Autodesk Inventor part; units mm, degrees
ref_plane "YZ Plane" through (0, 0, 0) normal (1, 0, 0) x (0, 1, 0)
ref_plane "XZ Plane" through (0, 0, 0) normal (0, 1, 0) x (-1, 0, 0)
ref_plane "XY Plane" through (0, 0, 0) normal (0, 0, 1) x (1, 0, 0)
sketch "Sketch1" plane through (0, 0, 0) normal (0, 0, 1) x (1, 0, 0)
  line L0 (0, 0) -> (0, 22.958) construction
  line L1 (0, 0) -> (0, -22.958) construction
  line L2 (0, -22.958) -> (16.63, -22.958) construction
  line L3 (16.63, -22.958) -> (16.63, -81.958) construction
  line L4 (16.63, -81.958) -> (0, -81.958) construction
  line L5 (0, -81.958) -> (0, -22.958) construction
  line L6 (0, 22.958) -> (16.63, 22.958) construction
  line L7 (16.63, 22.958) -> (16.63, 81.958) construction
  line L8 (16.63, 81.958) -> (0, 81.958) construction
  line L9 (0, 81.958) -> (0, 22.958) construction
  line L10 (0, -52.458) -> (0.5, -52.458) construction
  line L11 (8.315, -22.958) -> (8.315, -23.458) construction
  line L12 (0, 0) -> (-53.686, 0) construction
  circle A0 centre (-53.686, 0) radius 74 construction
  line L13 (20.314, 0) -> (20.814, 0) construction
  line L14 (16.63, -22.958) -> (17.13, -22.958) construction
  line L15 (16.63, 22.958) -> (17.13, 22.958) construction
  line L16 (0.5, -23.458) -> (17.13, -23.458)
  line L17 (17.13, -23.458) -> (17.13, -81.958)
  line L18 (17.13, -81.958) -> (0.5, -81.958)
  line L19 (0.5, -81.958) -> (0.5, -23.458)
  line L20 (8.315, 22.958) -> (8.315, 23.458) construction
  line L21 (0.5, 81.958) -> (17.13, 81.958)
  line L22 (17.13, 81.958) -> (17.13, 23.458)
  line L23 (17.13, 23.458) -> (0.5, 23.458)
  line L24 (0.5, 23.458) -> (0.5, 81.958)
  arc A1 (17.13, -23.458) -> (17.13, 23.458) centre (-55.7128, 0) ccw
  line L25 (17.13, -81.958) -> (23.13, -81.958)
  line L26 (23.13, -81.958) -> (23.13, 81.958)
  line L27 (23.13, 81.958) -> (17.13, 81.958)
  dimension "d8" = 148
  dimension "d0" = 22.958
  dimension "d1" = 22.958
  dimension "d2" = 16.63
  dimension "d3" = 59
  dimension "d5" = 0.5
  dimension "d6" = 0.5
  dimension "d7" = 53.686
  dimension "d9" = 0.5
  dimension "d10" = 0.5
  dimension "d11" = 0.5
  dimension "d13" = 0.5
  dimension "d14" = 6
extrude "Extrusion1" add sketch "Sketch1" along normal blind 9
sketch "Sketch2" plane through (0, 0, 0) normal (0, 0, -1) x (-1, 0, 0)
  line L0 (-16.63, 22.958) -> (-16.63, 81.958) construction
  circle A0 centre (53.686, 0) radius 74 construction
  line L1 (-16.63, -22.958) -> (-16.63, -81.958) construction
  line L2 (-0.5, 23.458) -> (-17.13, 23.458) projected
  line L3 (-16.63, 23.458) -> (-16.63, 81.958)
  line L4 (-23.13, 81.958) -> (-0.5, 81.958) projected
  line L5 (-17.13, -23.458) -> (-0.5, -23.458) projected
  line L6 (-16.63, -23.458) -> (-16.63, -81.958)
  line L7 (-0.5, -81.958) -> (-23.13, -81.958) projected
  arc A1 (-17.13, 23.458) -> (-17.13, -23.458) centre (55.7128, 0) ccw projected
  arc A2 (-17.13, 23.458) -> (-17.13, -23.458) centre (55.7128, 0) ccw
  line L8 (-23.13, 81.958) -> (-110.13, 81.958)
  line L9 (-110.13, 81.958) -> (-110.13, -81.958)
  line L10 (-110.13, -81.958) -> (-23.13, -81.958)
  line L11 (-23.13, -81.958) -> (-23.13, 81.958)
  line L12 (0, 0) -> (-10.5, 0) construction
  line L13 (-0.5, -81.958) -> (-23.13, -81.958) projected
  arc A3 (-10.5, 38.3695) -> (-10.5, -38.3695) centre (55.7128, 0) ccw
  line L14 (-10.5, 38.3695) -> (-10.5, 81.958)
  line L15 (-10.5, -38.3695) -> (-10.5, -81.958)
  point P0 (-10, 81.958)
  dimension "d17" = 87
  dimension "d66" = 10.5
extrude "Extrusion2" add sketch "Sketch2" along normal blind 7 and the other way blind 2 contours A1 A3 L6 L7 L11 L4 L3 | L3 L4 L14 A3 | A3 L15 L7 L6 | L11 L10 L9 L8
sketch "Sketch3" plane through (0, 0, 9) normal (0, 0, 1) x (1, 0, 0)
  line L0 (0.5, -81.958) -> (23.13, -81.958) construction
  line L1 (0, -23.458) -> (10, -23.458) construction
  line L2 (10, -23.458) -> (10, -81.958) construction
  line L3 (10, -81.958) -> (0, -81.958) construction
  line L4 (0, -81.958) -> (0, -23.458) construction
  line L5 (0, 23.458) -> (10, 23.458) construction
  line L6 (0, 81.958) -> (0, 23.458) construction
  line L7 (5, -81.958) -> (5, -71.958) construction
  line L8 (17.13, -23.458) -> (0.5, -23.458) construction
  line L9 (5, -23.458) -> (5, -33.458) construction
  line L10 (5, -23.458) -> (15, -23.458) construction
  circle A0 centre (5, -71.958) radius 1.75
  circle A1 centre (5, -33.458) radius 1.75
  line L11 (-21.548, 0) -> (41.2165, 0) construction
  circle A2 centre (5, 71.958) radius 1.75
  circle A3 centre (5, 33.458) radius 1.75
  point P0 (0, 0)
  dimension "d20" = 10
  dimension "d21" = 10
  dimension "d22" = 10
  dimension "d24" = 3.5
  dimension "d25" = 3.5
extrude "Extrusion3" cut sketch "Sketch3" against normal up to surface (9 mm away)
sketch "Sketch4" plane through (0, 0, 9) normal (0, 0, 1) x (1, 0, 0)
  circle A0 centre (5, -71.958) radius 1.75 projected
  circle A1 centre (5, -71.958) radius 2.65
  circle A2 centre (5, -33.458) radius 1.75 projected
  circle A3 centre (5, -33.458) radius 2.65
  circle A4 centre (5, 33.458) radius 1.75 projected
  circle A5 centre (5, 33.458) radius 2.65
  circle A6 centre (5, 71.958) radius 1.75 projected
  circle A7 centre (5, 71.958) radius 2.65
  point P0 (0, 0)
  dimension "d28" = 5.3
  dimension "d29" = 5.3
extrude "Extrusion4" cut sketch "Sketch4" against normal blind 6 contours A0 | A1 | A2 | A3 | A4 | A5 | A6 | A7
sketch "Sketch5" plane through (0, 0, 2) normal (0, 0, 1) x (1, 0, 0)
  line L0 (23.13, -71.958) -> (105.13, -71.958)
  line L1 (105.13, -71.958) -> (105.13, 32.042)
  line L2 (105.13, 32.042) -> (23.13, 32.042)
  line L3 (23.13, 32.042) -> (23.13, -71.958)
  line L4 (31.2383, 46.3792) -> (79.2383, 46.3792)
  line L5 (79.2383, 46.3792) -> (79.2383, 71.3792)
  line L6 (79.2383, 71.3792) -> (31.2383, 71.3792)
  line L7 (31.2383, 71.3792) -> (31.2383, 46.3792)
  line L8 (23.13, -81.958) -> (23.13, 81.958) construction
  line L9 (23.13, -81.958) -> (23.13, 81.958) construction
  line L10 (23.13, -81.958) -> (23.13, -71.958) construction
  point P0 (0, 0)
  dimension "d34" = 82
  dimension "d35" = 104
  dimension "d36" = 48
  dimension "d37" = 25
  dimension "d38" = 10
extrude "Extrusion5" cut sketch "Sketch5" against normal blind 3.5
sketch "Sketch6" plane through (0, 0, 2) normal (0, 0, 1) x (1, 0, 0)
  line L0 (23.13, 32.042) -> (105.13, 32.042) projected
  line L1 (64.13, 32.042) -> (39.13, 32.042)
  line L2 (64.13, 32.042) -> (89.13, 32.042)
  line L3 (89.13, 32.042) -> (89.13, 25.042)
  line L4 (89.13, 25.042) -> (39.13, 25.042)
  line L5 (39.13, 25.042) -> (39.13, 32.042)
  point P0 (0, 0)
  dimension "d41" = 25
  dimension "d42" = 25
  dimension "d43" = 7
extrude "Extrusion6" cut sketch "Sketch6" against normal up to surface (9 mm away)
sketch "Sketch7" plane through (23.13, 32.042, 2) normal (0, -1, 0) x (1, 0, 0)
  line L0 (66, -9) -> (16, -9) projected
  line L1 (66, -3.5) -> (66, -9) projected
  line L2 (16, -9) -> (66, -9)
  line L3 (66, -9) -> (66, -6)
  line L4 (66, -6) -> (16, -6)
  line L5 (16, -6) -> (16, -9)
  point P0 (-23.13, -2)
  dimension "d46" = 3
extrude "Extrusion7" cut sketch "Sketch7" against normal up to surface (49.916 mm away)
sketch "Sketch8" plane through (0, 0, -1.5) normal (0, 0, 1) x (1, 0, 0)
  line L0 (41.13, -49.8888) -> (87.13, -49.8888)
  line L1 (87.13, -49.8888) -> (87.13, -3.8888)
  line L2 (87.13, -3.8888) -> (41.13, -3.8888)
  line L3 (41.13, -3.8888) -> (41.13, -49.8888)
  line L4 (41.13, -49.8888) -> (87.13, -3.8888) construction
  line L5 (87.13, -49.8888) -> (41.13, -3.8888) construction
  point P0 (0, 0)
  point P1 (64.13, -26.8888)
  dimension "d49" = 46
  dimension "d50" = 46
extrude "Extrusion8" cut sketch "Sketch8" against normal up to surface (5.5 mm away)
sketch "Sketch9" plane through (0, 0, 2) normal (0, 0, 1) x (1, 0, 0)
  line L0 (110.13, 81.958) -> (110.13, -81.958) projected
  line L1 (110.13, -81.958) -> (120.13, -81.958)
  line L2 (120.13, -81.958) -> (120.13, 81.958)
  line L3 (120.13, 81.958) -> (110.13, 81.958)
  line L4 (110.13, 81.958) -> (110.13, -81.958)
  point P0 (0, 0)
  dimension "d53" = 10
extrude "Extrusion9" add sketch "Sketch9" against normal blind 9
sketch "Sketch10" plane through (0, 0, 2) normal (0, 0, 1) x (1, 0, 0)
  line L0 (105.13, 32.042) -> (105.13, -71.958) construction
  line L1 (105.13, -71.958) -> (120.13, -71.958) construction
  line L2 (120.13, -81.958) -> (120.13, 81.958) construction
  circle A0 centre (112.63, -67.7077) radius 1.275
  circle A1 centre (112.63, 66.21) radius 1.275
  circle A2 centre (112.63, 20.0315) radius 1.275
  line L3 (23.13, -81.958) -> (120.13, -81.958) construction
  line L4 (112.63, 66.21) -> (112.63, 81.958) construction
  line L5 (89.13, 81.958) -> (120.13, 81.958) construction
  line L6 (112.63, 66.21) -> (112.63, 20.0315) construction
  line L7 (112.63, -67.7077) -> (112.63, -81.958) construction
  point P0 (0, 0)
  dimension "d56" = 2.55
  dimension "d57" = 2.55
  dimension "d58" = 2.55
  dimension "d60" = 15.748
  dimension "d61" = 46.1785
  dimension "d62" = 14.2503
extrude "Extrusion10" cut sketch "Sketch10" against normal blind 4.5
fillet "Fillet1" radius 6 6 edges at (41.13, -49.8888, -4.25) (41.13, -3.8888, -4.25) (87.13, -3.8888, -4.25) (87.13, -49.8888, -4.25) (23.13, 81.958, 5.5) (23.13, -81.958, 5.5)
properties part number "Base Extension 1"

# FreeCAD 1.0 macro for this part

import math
import FreeCAD as App
import Part
import Sketcher
Q = App.Units.Quantity


def edges_at(feature, points):
    """Names of the edges that pass closest to the given points."""
    edges = feature.Shape.Edges
    near = lambda p: min(range(len(edges)), key=lambda i: edges[i].distToShape(Part.Vertex(*p))[0])
    return sorted({f"Edge{near(p) + 1}" for p in points})

doc = App.newDocument("Part")
body = doc.addObject("PartDesign::Body", "Body")

# Sketch on XY plane
sketch1 = body.newObject("Sketcher::SketchObject", "Sketch")
sketch1.AttachmentSupport = (doc.getObject("XY_Plane"), [""])
sketch1.MapMode = "FlatFace"
sketch1.addGeometry([
    Part.LineSegment(App.Vector(17, -23, 0), App.Vector(0, -23, 0)),  # 0
    Part.LineSegment(App.Vector(0, -23, 0), App.Vector(0, -82, 0)),  # 1
    Part.LineSegment(App.Vector(0, -82, 0), App.Vector(23, -82, 0)),  # 2
    Part.LineSegment(App.Vector(23, -82, 0), App.Vector(23, 82, 0)),  # 3
    Part.LineSegment(App.Vector(23, 82, 0), App.Vector(0, 82, 0)),  # 4
    Part.LineSegment(App.Vector(0, 82, 0), App.Vector(0, 23, 0)),  # 5
    Part.LineSegment(App.Vector(0, 23, 0), App.Vector(17, 23, 0)),  # 6
    Part.ArcOfCircle(Part.Circle(App.Vector(-56, 0, 0), App.Vector(0, 0, 1), 77), math.radians(-18), math.radians(18)),  # 7
], False)
sketch1.addConstraint([
    Sketcher.Constraint("Coincident", 0, 2, 1, 1),
    Sketcher.Constraint("Coincident", 1, 2, 2, 1),
    Sketcher.Constraint("Coincident", 2, 2, 3, 1),
    Sketcher.Constraint("Coincident", 3, 2, 4, 1),
    Sketcher.Constraint("Coincident", 4, 2, 5, 1),
    Sketcher.Constraint("Coincident", 5, 2, 6, 1),
    Sketcher.Constraint("Coincident", 6, 2, 7, 2),
    Sketcher.Constraint("Coincident", 7, 1, 0, 1),
    Sketcher.Constraint("Horizontal", 0),
    Sketcher.Constraint("Vertical", 1),
    Sketcher.Constraint("Horizontal", 2),
    Sketcher.Constraint("Vertical", 3),
    Sketcher.Constraint("Horizontal", 4),
    Sketcher.Constraint("Vertical", 5),
    Sketcher.Constraint("Horizontal", 6),
    Sketcher.Constraint("Symmetric", 1, 2, 4, 2, -1),
    Sketcher.Constraint("Symmetric", 6, 2, 7, 1, -1),
    Sketcher.Constraint("DistanceX", 6, 2, 3, 2, Q("6 mm")),
    Sketcher.Constraint("DistanceX", 0, 2, 0, 1, Q("16.63 mm")),
    Sketcher.Constraint("DistanceX", -1, 1, 0, 2, Q("0.5 mm")),
    Sketcher.Constraint("DistanceY", 1, 2, 1, 1, Q("58.5 mm")),
    Sketcher.Constraint("Radius", 7, Q("76.5268 mm")),
    Sketcher.Constraint("DistanceY", 3, 1, 3, 2, Q("163.916 mm")),
])
pad1 = body.newObject("PartDesign::Pad", "Pad")
pad1.Profile = sketch1
pad1.Length = 9

# Sketch on XY plane
sketch2 = body.newObject("Sketcher::SketchObject", "Sketch001")
sketch2.AttachmentSupport = (doc.getObject("XY_Plane"), [""])
sketch2.MapMode = "FlatFace"
sketch2.addGeometry([
    Part.LineSegment(App.Vector(10, 38, 0), App.Vector(10, 82, 0)),  # 0
    Part.LineSegment(App.Vector(10, 82, 0), App.Vector(110, 82, 0)),  # 1
    Part.LineSegment(App.Vector(110, 82, 0), App.Vector(110, -82, 0)),  # 2
    Part.LineSegment(App.Vector(110, -82, 0), App.Vector(10, -82, 0)),  # 3
    Part.LineSegment(App.Vector(10, -82, 0), App.Vector(10, -38, 0)),  # 4
    Part.ArcOfCircle(Part.Circle(App.Vector(-56, 0, 0), App.Vector(0, 0, 1), 77), math.radians(-30), math.radians(30)),  # 5
], False)
sketch2.addConstraint([
    Sketcher.Constraint("Coincident", 0, 2, 1, 1),
    Sketcher.Constraint("Coincident", 1, 2, 2, 1),
    Sketcher.Constraint("Coincident", 2, 2, 3, 1),
    Sketcher.Constraint("Coincident", 3, 2, 4, 1),
    Sketcher.Constraint("Coincident", 4, 2, 5, 1),
    Sketcher.Constraint("Coincident", 5, 2, 0, 1),
    Sketcher.Constraint("Vertical", 0),
    Sketcher.Constraint("Horizontal", 1),
    Sketcher.Constraint("Vertical", 2),
    Sketcher.Constraint("Horizontal", 3),
    Sketcher.Constraint("Vertical", 4),
    Sketcher.Constraint("Symmetric", 0, 2, 3, 2, -1),
    Sketcher.Constraint("PointOnObject", 5, 3, -1),
    Sketcher.Constraint("DistanceX", -1, 1, 0, 2, Q("10.5 mm")),
    Sketcher.Constraint("DistanceX", 1, 1, 1, 2, Q("99.63 mm")),
    Sketcher.Constraint("Radius", 5, Q("76.5268 mm")),
    Sketcher.Constraint("DistanceY", 2, 2, 2, 1, Q("163.916 mm")),
    Sketcher.Constraint("DistanceY", 0, 1, 0, 2, Q("43.5885 mm")),
])
pad2 = body.newObject("PartDesign::Pad", "Pad001")
pad2.Profile = sketch2
pad2.Type = "TwoLengths"
pad2.Length = 7
pad2.Length2 = 2
pad2.Reversed = True

# Sketch on XY plane
sketch3 = body.newObject("Sketcher::SketchObject", "Sketch002")
sketch3.AttachmentSupport = (doc.getObject("XY_Plane"), [""])
sketch3.MapMode = "FlatFace"
sketch3.AttachmentOffset = App.Placement(App.Vector(0, 0, 9), App.Rotation())
sketch3.addGeometry([
    Part.Circle(App.Vector(5, -72, 0), App.Vector(0, 0, 1), 1.8),
    Part.Circle(App.Vector(5, -33.5, 0), App.Vector(0, 0, 1), 1.8),
    Part.Circle(App.Vector(5, 72, 0), App.Vector(0, 0, 1), 1.8),
    Part.Circle(App.Vector(5, 33.5, 0), App.Vector(0, 0, 1), 1.8),
], False)
sketch3.addConstraint([
    Sketcher.Constraint("Equal", 0, 1),
    Sketcher.Constraint("Equal", 1, 2),
    Sketcher.Constraint("Equal", 2, 3),
    Sketcher.Constraint("Symmetric", 0, 3, 2, 3, -1),
    Sketcher.Constraint("Symmetric", 1, 3, 3, 3, -1),
    Sketcher.Constraint("Vertical", 0, 3, 1, 3),
    Sketcher.Constraint("Diameter", 0, Q("3.5 mm")),
    Sketcher.Constraint("DistanceX", -1, 1, 0, 3, Q("5 mm")),
    Sketcher.Constraint("DistanceY", 0, 3, 1, 3, Q("38.5 mm")),
    Sketcher.Constraint("DistanceY", 0, 3, -1, 1, Q("71.958 mm")),
])
pocket1 = body.newObject("PartDesign::Pocket", "Pocket")
pocket1.Profile = sketch3
pocket1.Length = 9

# Sketch on XY plane
sketch4 = body.newObject("Sketcher::SketchObject", "Sketch003")
sketch4.AttachmentSupport = (doc.getObject("XY_Plane"), [""])
sketch4.MapMode = "FlatFace"
sketch4.AttachmentOffset = App.Placement(App.Vector(0, 0, 9), App.Rotation())
sketch4.addGeometry([
    Part.Circle(App.Vector(5, -72, 0), App.Vector(0, 0, 1), 2.6),
    Part.Circle(App.Vector(5, -33.5, 0), App.Vector(0, 0, 1), 2.6),
    Part.Circle(App.Vector(5, 33.5, 0), App.Vector(0, 0, 1), 2.6),
    Part.Circle(App.Vector(5, 72, 0), App.Vector(0, 0, 1), 2.6),
], False)
sketch4.addConstraint([
    Sketcher.Constraint("Equal", 0, 1),
    Sketcher.Constraint("Equal", 1, 2),
    Sketcher.Constraint("Equal", 2, 3),
    Sketcher.Constraint("Symmetric", 1, 3, 2, 3, -1),
    Sketcher.Constraint("Symmetric", 0, 3, 3, 3, -1),
    Sketcher.Constraint("Vertical", 0, 3, 1, 3),
    Sketcher.Constraint("Diameter", 0, Q("5.3 mm")),
    Sketcher.Constraint("DistanceX", -1, 1, 0, 3, Q("5 mm")),
    Sketcher.Constraint("DistanceY", 0, 3, 1, 3, Q("38.5 mm")),
    Sketcher.Constraint("DistanceY", 0, 3, -1, 1, Q("71.958 mm")),
])
pocket2 = body.newObject("PartDesign::Pocket", "Pocket001")
pocket2.Profile = sketch4
pocket2.Length = 6

# Sketch on XY plane
sketch5 = body.newObject("Sketcher::SketchObject", "Sketch004")
sketch5.AttachmentSupport = (doc.getObject("XY_Plane"), [""])
sketch5.MapMode = "FlatFace"
sketch5.AttachmentOffset = App.Placement(App.Vector(0, 0, 2), App.Rotation())
sketch5.addGeometry([
    Part.LineSegment(App.Vector(23, 32, 0), App.Vector(23, -72, 0)),  # 0
    Part.LineSegment(App.Vector(23, -72, 0), App.Vector(105, -72, 0)),  # 1
    Part.LineSegment(App.Vector(105, -72, 0), App.Vector(105, 32, 0)),  # 2
    Part.LineSegment(App.Vector(105, 32, 0), App.Vector(23, 32, 0)),  # 3
    Part.LineSegment(App.Vector(31, 71, 0), App.Vector(31, 46, 0)),  # 4
    Part.LineSegment(App.Vector(31, 46, 0), App.Vector(79, 46, 0)),  # 5
    Part.LineSegment(App.Vector(79, 46, 0), App.Vector(79, 71, 0)),  # 6
    Part.LineSegment(App.Vector(79, 71, 0), App.Vector(31, 71, 0)),  # 7
], False)
sketch5.addConstraint([
    Sketcher.Constraint("Coincident", 0, 2, 1, 1),
    Sketcher.Constraint("Coincident", 1, 2, 2, 1),
    Sketcher.Constraint("Coincident", 2, 2, 3, 1),
    Sketcher.Constraint("Coincident", 3, 2, 0, 1),
    Sketcher.Constraint("Coincident", 4, 2, 5, 1),
    Sketcher.Constraint("Coincident", 5, 2, 6, 1),
    Sketcher.Constraint("Coincident", 6, 2, 7, 1),
    Sketcher.Constraint("Coincident", 7, 2, 4, 1),
    Sketcher.Constraint("Vertical", 0),
    Sketcher.Constraint("Horizontal", 1),
    Sketcher.Constraint("Vertical", 2),
    Sketcher.Constraint("Horizontal", 3),
    Sketcher.Constraint("Vertical", 4),
    Sketcher.Constraint("Horizontal", 5),
    Sketcher.Constraint("Vertical", 6),
    Sketcher.Constraint("Horizontal", 7),
    Sketcher.Constraint("DistanceX", 1, 1, 1, 2, Q("82 mm")),
    Sketcher.Constraint("DistanceX", 5, 1, 5, 2, Q("48 mm")),
    Sketcher.Constraint("DistanceY", 0, 2, 0, 1, Q("104 mm")),
    Sketcher.Constraint("DistanceY", 4, 2, 4, 1, Q("25 mm")),
    Sketcher.Constraint("DistanceX", -1, 1, 0, 2, Q("23.13 mm")),
    Sketcher.Constraint("DistanceY", 0, 2, -1, 1, Q("71.958 mm")),
    Sketcher.Constraint("DistanceX", -1, 1, 4, 2, Q("31.2383 mm")),
    Sketcher.Constraint("DistanceY", -1, 1, 4, 2, Q("46.3792 mm")),
])
pocket3 = body.newObject("PartDesign::Pocket", "Pocket002")
pocket3.Profile = sketch5
pocket3.Length = 3.5

# Sketch on XY plane
sketch6 = body.newObject("Sketcher::SketchObject", "Sketch005")
sketch6.AttachmentSupport = (doc.getObject("XY_Plane"), [""])
sketch6.MapMode = "FlatFace"
sketch6.AttachmentOffset = App.Placement(App.Vector(0, 0, 2), App.Rotation())
sketch6.addGeometry([
    Part.LineSegment(App.Vector(89, 32, 0), App.Vector(39, 32, 0)),
    Part.LineSegment(App.Vector(39, 32, 0), App.Vector(39, 25, 0)),
    Part.LineSegment(App.Vector(39, 25, 0), App.Vector(89, 25, 0)),
    Part.LineSegment(App.Vector(89, 25, 0), App.Vector(89, 32, 0)),
], False)
sketch6.addConstraint([
    Sketcher.Constraint("Coincident", 0, 2, 1, 1),
    Sketcher.Constraint("Coincident", 1, 2, 2, 1),
    Sketcher.Constraint("Coincident", 2, 2, 3, 1),
    Sketcher.Constraint("Coincident", 3, 2, 0, 1),
    Sketcher.Constraint("Horizontal", 0),
    Sketcher.Constraint("Vertical", 1),
    Sketcher.Constraint("Horizontal", 2),
    Sketcher.Constraint("Vertical", 3),
    Sketcher.Constraint("DistanceY", 1, 2, 1, 1, Q("7 mm")),
    Sketcher.Constraint("DistanceX", 0, 2, 0, 1, Q("50 mm")),
    Sketcher.Constraint("DistanceX", -1, 1, 0, 2, Q("39.13 mm")),
    Sketcher.Constraint("DistanceY", -1, 1, 0, 2, Q("32.042 mm")),
])
pocket4 = body.newObject("PartDesign::Pocket", "Pocket003")
pocket4.Profile = sketch6
pocket4.Length = 9

# Sketch on XZ plane
sketch7 = body.newObject("Sketcher::SketchObject", "Sketch006")
sketch7.AttachmentSupport = (doc.getObject("XZ_Plane"), [""])
sketch7.MapMode = "FlatFace"
sketch7.AttachmentOffset = App.Placement(App.Vector(0, 0, -32.042), App.Rotation())
sketch7.addGeometry([
    Part.LineSegment(App.Vector(39.1, -7, 0), App.Vector(89.1, -7, 0)),
    Part.LineSegment(App.Vector(89.1, -7, 0), App.Vector(89.1, -4, 0)),
    Part.LineSegment(App.Vector(89.1, -4, 0), App.Vector(39.1, -4, 0)),
    Part.LineSegment(App.Vector(39.1, -4, 0), App.Vector(39.1, -7, 0)),
], False)
sketch7.addConstraint([
    Sketcher.Constraint("Coincident", 0, 2, 1, 1),
    Sketcher.Constraint("Coincident", 1, 2, 2, 1),
    Sketcher.Constraint("Coincident", 2, 2, 3, 1),
    Sketcher.Constraint("Coincident", 3, 2, 0, 1),
    Sketcher.Constraint("Horizontal", 0),
    Sketcher.Constraint("Vertical", 1),
    Sketcher.Constraint("Horizontal", 2),
    Sketcher.Constraint("Vertical", 3),
    Sketcher.Constraint("DistanceY", 1, 1, 1, 2, Q("3 mm")),
    Sketcher.Constraint("DistanceX", 0, 1, 0, 2, Q("50 mm")),
    Sketcher.Constraint("DistanceY", 0, 2, -1, 1, Q("7 mm")),
    Sketcher.Constraint("DistanceX", -1, 1, 0, 2, Q("89.13 mm")),
])
pocket5 = body.newObject("PartDesign::Pocket", "Pocket004")
pocket5.Profile = sketch7
pocket5.Length = 49.916

# Sketch on XY plane
sketch8 = body.newObject("Sketcher::SketchObject", "Sketch007")
sketch8.AttachmentSupport = (doc.getObject("XY_Plane"), [""])
sketch8.MapMode = "FlatFace"
sketch8.AttachmentOffset = App.Placement(App.Vector(0, 0, -1.5), App.Rotation())
sketch8.addGeometry([
    Part.LineSegment(App.Vector(41, -4, 0), App.Vector(41, -50, 0)),
    Part.LineSegment(App.Vector(41, -50, 0), App.Vector(87, -50, 0)),
    Part.LineSegment(App.Vector(87, -50, 0), App.Vector(87, -4, 0)),
    Part.LineSegment(App.Vector(87, -4, 0), App.Vector(41, -4, 0)),
], False)
sketch8.addConstraint([
    Sketcher.Constraint("Coincident", 0, 2, 1, 1),
    Sketcher.Constraint("Coincident", 1, 2, 2, 1),
    Sketcher.Constraint("Coincident", 2, 2, 3, 1),
    Sketcher.Constraint("Coincident", 3, 2, 0, 1),
    Sketcher.Constraint("Vertical", 0),
    Sketcher.Constraint("Horizontal", 1),
    Sketcher.Constraint("Vertical", 2),
    Sketcher.Constraint("Horizontal", 3),
    Sketcher.Constraint("Equal", 3, 0),
    Sketcher.Constraint("DistanceX", 1, 1, 1, 2, Q("46 mm")),
    Sketcher.Constraint("DistanceX", -1, 1, 0, 2, Q("41.13 mm")),
    Sketcher.Constraint("DistanceY", 0, 2, -1, 1, Q("49.8888 mm")),
])
pocket6 = body.newObject("PartDesign::Pocket", "Pocket005")
pocket6.Profile = sketch8
pocket6.Length = 5.5

# Sketch on XY plane
sketch9 = body.newObject("Sketcher::SketchObject", "Sketch008")
sketch9.AttachmentSupport = (doc.getObject("XY_Plane"), [""])
sketch9.MapMode = "FlatFace"
sketch9.AttachmentOffset = App.Placement(App.Vector(0, 0, 2), App.Rotation())
sketch9.addGeometry([
    Part.LineSegment(App.Vector(120, 82, 0), App.Vector(110, 82, 0)),
    Part.LineSegment(App.Vector(110, 82, 0), App.Vector(110, -82, 0)),
    Part.LineSegment(App.Vector(110, -82, 0), App.Vector(120, -82, 0)),
    Part.LineSegment(App.Vector(120, -82, 0), App.Vector(120, 82, 0)),
], False)
sketch9.addConstraint([
    Sketcher.Constraint("Coincident", 0, 2, 1, 1),
    Sketcher.Constraint("Coincident", 1, 2, 2, 1),
    Sketcher.Constraint("Coincident", 2, 2, 3, 1),
    Sketcher.Constraint("Coincident", 3, 2, 0, 1),
    Sketcher.Constraint("Horizontal", 0),
    Sketcher.Constraint("Vertical", 1),
    Sketcher.Constraint("Horizontal", 2),
    Sketcher.Constraint("Vertical", 3),
    Sketcher.Constraint("DistanceX", 0, 2, 0, 1, Q("10 mm")),
    Sketcher.Constraint("DistanceY", 1, 2, 1, 1, Q("163.916 mm")),
    Sketcher.Constraint("DistanceX", -1, 1, 0, 2, Q("110.13 mm")),
    Sketcher.Constraint("DistanceY", -1, 1, 0, 2, Q("81.958 mm")),
])
pad3 = body.newObject("PartDesign::Pad", "Pad002")
pad3.Profile = sketch9
pad3.Length = 9
pad3.Reversed = True

# Sketch on XY plane
sketch10 = body.newObject("Sketcher::SketchObject", "Sketch009")
sketch10.AttachmentSupport = (doc.getObject("XY_Plane"), [""])
sketch10.MapMode = "FlatFace"
sketch10.AttachmentOffset = App.Placement(App.Vector(0, 0, 2), App.Rotation())
sketch10.addGeometry([
    Part.Circle(App.Vector(112.6, -67.7, 0), App.Vector(0, 0, 1), 1.3),
    Part.Circle(App.Vector(112.6, 66.2, 0), App.Vector(0, 0, 1), 1.3),
    Part.Circle(App.Vector(112.6, 20, 0), App.Vector(0, 0, 1), 1.3),
], False)
sketch10.addConstraint([
    Sketcher.Constraint("Equal", 0, 1),
    Sketcher.Constraint("Equal", 1, 2),
    Sketcher.Constraint("Vertical", 0, 3, 1, 3),
    Sketcher.Constraint("Vertical", 1, 3, 2, 3),
    Sketcher.Constraint("Diameter", 0, Q("2.55 mm")),
    Sketcher.Constraint("DistanceY", 2, 3, 1, 3, Q("46.1785 mm")),
    Sketcher.Constraint("DistanceX", -1, 1, 0, 3, Q("112.63 mm")),
    Sketcher.Constraint("DistanceY", -1, 1, 1, 3, Q("66.21 mm")),
    Sketcher.Constraint("DistanceY", 0, 3, -1, 1, Q("67.7077 mm")),
])
pocket7 = body.newObject("PartDesign::Pocket", "Pocket006")
pocket7.Profile = sketch10
pocket7.Length = 4.5
doc.recompute()

fillet = body.newObject("PartDesign::Fillet", "Fillet")
fillet.Base = (pocket7, edges_at(pocket7, [
    (41.13, -49.889, -4.25),
    (41.13, -3.889, -4.25),
    (87.13, -3.889, -4.25),
    (87.13, -49.889, -4.25),
    (23.13, 81.958, 5.5),
    (23.13, -81.958, 5.5),
]))
fillet.Radius = 6

doc.recompute()
